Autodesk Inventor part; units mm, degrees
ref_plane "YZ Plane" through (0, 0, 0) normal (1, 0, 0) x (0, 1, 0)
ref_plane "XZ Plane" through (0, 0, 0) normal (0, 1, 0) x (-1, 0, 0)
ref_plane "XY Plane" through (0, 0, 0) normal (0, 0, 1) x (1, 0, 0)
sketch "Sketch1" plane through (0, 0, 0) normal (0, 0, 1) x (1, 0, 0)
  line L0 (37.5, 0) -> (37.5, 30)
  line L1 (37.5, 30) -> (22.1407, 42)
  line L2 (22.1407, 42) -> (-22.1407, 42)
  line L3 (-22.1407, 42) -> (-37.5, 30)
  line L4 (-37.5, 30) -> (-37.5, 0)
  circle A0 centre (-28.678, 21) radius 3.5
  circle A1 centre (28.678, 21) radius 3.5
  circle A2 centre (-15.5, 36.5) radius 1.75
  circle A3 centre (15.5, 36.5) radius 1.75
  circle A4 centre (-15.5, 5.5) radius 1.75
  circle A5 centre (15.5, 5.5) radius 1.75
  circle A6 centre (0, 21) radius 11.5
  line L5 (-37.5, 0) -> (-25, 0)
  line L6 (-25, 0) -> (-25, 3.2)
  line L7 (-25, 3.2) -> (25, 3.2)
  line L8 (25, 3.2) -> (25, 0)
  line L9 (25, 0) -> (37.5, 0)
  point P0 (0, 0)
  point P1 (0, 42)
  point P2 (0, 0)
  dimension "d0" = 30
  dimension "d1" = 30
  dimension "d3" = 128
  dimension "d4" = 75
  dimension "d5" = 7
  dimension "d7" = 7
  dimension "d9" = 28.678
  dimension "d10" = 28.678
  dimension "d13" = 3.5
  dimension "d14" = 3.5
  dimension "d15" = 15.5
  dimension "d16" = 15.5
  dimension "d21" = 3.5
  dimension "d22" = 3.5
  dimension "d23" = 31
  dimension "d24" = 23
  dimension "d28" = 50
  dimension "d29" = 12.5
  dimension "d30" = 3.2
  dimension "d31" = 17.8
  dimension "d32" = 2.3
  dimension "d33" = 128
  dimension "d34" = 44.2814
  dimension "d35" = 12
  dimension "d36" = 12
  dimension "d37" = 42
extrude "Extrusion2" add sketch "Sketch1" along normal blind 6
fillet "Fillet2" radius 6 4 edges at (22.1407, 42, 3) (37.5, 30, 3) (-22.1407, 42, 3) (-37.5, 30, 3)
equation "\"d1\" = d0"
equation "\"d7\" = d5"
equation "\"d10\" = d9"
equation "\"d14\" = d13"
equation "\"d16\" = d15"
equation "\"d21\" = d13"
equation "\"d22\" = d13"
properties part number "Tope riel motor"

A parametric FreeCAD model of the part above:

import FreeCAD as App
import Part
import Sketcher
Q = App.Units.Quantity


def edges_at(feature, points):
    """Names of the edges that pass closest to the given points."""
    edges = feature.Shape.Edges
    near = lambda p: min(range(len(edges)), key=lambda i: edges[i].distToShape(Part.Vertex(*p))[0])
    return sorted({f"Edge{near(p) + 1}" for p in points})


def add_polygon(sketch, points):
    """Adds a closed chain of lines whose ends are joined by coincident constraints."""
    first, n = sketch.GeometryCount, len(points)
    for a, b in zip(points, points[1:] + points[:1]):
        sketch.addGeometry(Part.LineSegment(App.Vector(*a, 0), App.Vector(*b, 0)), False)
    for i in range(n):
        sketch.addConstraint(Sketcher.Constraint("Coincident", first + i, 2, first + (i + 1) % n, 1))

doc = App.newDocument("Part")
body = doc.addObject("PartDesign::Body", "Body")

sketch1 = body.newObject("Sketcher::SketchObject", "Sketch")
sketch1.AttachmentSupport = (doc.getObject("XY_Plane"), [""])
sketch1.MapMode = "FlatFace"
add_polygon(sketch1, [(25, 0), (37.5, 0), (37.5, 30), (22.1, 42), (-22.1, 42), (-37.5, 30), (-37.5, 0), (-25, 0), (-25, 3.2), (25, 3.2)])
sketch1.addGeometry(Part.Circle(App.Vector(-15.5, 5.5, 0), App.Vector(0, 0, 1), 1.8), False)
sketch1.addGeometry(Part.Circle(App.Vector(15.5, 5.5, 0), App.Vector(0, 0, 1), 1.8), False)
sketch1.addGeometry(Part.Circle(App.Vector(-28.7, 21, 0), App.Vector(0, 0, 1), 3.5), False)
sketch1.addGeometry(Part.Circle(App.Vector(-15.5, 36.5, 0), App.Vector(0, 0, 1), 1.8), False)
sketch1.addGeometry(Part.Circle(App.Vector(0, 21, 0), App.Vector(0, 0, 1), 11.5), False)
sketch1.addGeometry(Part.Circle(App.Vector(28.7, 21, 0), App.Vector(0, 0, 1), 3.5), False)
sketch1.addGeometry(Part.Circle(App.Vector(15.5, 36.5, 0), App.Vector(0, 0, 1), 1.8), False)
sketch1.addConstraint(Sketcher.Constraint("Horizontal", 0))
sketch1.addConstraint(Sketcher.Constraint("Vertical", 1))
sketch1.addConstraint(Sketcher.Constraint("Horizontal", 3))
sketch1.addConstraint(Sketcher.Constraint("Vertical", 5))
sketch1.addConstraint(Sketcher.Constraint("Horizontal", 6))
sketch1.addConstraint(Sketcher.Constraint("Vertical", 7))
sketch1.addConstraint(Sketcher.Constraint("Horizontal", 8))
sketch1.addConstraint(Sketcher.Constraint("Vertical", 9))
sketch1.addConstraint(Sketcher.Constraint("Equal", 10, 11))
sketch1.addConstraint(Sketcher.Constraint("Equal", 11, 13))
sketch1.addConstraint(Sketcher.Constraint("Equal", 12, 15))
sketch1.addConstraint(Sketcher.Constraint("Equal", 13, 16))
sketch1.addConstraint(Sketcher.Constraint("Symmetric", 0, 2, 5, 2, -1, 1))
sketch1.addConstraint(Sketcher.Constraint("Symmetric", 10, 3, 11, 3, -2))
sketch1.addConstraint(Sketcher.Constraint("Symmetric", 12, 3, 15, 3, -2))
sketch1.addConstraint(Sketcher.Constraint("Symmetric", 13, 3, 16, 3, -2))
sketch1.addConstraint(Sketcher.Constraint("Symmetric", 6, 2, 9, 2, -2))
sketch1.addConstraint(Sketcher.Constraint("PointOnObject", 14, 3, -2))
sketch1.addConstraint(Sketcher.Constraint("Horizontal", 12, 3, 14, 3))
sketch1.addConstraint(Sketcher.Constraint("Horizontal", 1, 2, 4, 2))
sketch1.addConstraint(Sketcher.Constraint("Vertical", 10, 3, 13, 3))
sketch1.addConstraint(Sketcher.Constraint("Equal", 2, 4))
sketch1.addConstraint(Sketcher.Constraint("Diameter", 12, Q("7 mm")))
sketch1.addConstraint(Sketcher.Constraint("Diameter", 14, Q("23 mm")))
sketch1.addConstraint(Sketcher.Constraint("Diameter", 10, Q("3.5 mm")))
sketch1.addConstraint(Sketcher.Constraint("DistanceX", 8, 1, 8, 2, Q("50 mm")))
sketch1.addConstraint(Sketcher.Constraint("DistanceY", 1, 1, 1, 2, Q("30 mm")))
sketch1.addConstraint(Sketcher.Constraint("DistanceX", 0, 1, 0, 2, Q("12.5 mm")))
sketch1.addConstraint(Sketcher.Constraint("DistanceY", 7, 1, 7, 2, Q("3.2 mm")))
sketch1.addConstraint(Sketcher.Constraint("DistanceY", -1, 1, 2, 2, Q("42 mm")))
sketch1.addConstraint(Sketcher.Constraint("DistanceX", 10, 3, 11, 3, Q("31 mm")))
sketch1.addConstraint(Sketcher.Constraint("DistanceY", 10, 3, 13, 3, Q("31 mm")))
sketch1.addConstraint(Sketcher.Constraint("DistanceY", 10, 3, 12, 3, Q("15.5 mm")))
sketch1.addConstraint(Sketcher.Constraint("DistanceY", 7, 2, 10, 3, Q("2.3 mm")))
sketch1.addConstraint(Sketcher.Constraint("Angle", 2, Q("142 deg")))
sketch1.addConstraint(Sketcher.Constraint("DistanceX", 12, 3, -1, 1, Q("28.678 mm")))
pad1 = body.newObject("PartDesign::Pad", "Pad")
pad1.Profile = sketch1
pad1.Length = 6
doc.recompute()

fillet = body.newObject("PartDesign::Fillet", "Fillet")
fillet.Base = (pad1, edges_at(pad1, [
    (22.141, 42, 3),
    (37.5, 30, 3),
    (-22.141, 42, 3),
    (-37.5, 30, 3),
]))
fillet.Radius = 6

doc.recompute()
